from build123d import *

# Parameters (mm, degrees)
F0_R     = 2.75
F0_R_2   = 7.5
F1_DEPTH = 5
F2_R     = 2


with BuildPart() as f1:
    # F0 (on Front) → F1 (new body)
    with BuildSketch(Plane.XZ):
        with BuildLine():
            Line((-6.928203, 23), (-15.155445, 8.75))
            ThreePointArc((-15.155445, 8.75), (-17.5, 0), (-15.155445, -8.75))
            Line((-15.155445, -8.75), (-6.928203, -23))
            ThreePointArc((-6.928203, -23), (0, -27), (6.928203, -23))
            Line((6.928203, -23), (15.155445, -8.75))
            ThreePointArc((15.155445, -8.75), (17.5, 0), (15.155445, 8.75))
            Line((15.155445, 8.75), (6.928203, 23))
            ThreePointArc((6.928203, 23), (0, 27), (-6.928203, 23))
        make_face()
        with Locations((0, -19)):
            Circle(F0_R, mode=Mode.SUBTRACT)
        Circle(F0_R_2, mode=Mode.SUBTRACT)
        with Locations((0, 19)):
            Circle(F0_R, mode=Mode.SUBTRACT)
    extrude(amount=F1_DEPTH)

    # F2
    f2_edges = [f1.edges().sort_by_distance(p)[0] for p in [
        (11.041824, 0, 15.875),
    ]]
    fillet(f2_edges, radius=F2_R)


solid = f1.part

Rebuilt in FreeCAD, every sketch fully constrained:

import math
import FreeCAD as App
import Part
import Sketcher
Q = App.Units.Quantity


def edges_at(feature, points):
    """Names of the edges that pass closest to the given points."""
    edges = feature.Shape.Edges
    near = lambda p: min(range(len(edges)), key=lambda i: edges[i].distToShape(Part.Vertex(*p))[0])
    return sorted({f"Edge{near(p) + 1}" for p in points})

doc = App.newDocument("Part")
params = doc.addObject("Spreadsheet::Sheet", "Params")
for row, (alias, value) in enumerate([
    ("sketch1_diameter", "15 mm"),
    ("sketch1_radius", "8 mm"),
    ("sketch1_diameter2", "5.5 mm"),
    ("pad1_length", "5 mm"),
    ("fillet_radius", "2 mm"),
], start=1):
    params.set(f"A{row}", alias)
    params.set(f"B{row}", "=" + value)
    params.setAlias(f"B{row}", alias)

body = doc.addObject("PartDesign::Body", "Body")

# Sketch on XZ plane
sketch1 = doc.addObject("Sketcher::SketchObject", "Sketch")
body.addObject(sketch1)
sketch1.AttachmentSupport = (doc.XZ_Plane, [""])
sketch1.MapMode = "FlatFace"
sketch1.addGeometry([
    Part.LineSegment(App.Vector(-6.9, 23, 0), App.Vector(-15.2, 8.8, 0)),  # 0
    Part.ArcOfCircle(Part.Circle(App.Vector(0, 0, 0), App.Vector(0, 0, 1), 17.5), math.radians(150), math.radians(210)),  # 1
    Part.LineSegment(App.Vector(-15.2, -8.8, 0), App.Vector(-6.9, -23, 0)),  # 2
    Part.ArcOfCircle(Part.Circle(App.Vector(0, -19, 0), App.Vector(0, 0, 1), 8), math.radians(-150), math.radians(-30)),  # 3
    Part.LineSegment(App.Vector(6.9, -23, 0), App.Vector(15.2, -8.8, 0)),  # 4
    Part.ArcOfCircle(Part.Circle(App.Vector(0, 0, 0), App.Vector(0, 0, 1), 17.5), math.radians(-30), math.radians(30)),  # 5
    Part.LineSegment(App.Vector(15.2, 8.8, 0), App.Vector(6.9, 23, 0)),  # 6
    Part.ArcOfCircle(Part.Circle(App.Vector(0, 19, 0), App.Vector(0, 0, 1), 8), math.radians(30), math.radians(150)),  # 7
    Part.Circle(App.Vector(0, -19, 0), App.Vector(0, 0, 1), 2.8),  # 8
    Part.Circle(App.Vector(0, 0, 0), App.Vector(0, 0, 1), 7.5),  # 9
    Part.Circle(App.Vector(0, 19, 0), App.Vector(0, 0, 1), 2.8),  # 10
], False)
sketch1.addConstraint([
    Sketcher.Constraint("Tangent", 0, 2, 1, 1),
    Sketcher.Constraint("Tangent", 1, 2, 2, 1),
    Sketcher.Constraint("Tangent", 2, 2, 3, 1),
    Sketcher.Constraint("Tangent", 3, 2, 4, 1),
    Sketcher.Constraint("Tangent", 4, 2, 5, 1),
    Sketcher.Constraint("Tangent", 5, 2, 6, 1),
    Sketcher.Constraint("Tangent", 6, 2, 7, 1),
    Sketcher.Constraint("Tangent", 7, 2, 0, 1),
    Sketcher.Constraint("Coincident", 1, 3, -1, 1),
    Sketcher.Constraint("Coincident", 5, 3, -1, 1),
    Sketcher.Constraint("Coincident", 9, 3, -1, 1),
    Sketcher.Constraint("Coincident", 8, 3, 3, 3),
    Sketcher.Constraint("Coincident", 10, 3, 7, 3),
    Sketcher.Constraint("Equal", 1, 5),
    Sketcher.Constraint("Equal", 3, 7),
    Sketcher.Constraint("Equal", 8, 10),
    Sketcher.Constraint("Symmetric", 3, 3, 7, 3, -1, 1),
    Sketcher.Constraint("PointOnObject", 3, 3, -2),
    Sketcher.Constraint("Diameter", 9, 15.0),
    Sketcher.Constraint("Radius", 3, 8.0),
    Sketcher.Constraint("Diameter", 8, 5.5),
    Sketcher.Constraint("Angle", 0, Q("-120.000002 deg")),
    Sketcher.Constraint("DistanceY", 3, 3, -1, 1, 19.0),
])
sketch1.setExpression("Constraints[18]", "Params.sketch1_diameter")
sketch1.setExpression("Constraints[19]", "Params.sketch1_radius")
sketch1.setExpression("Constraints[20]", "Params.sketch1_diameter2")
pad1 = doc.addObject("PartDesign::Pad", "Pad")
body.addObject(pad1)
pad1.Profile = sketch1
pad1.setExpression("Length", "Params.pad1_length")
doc.recompute()

fillet = doc.addObject("PartDesign::Fillet", "Fillet")
body.addObject(fillet)
fillet.Base = (pad1, edges_at(pad1, [(11.042, 0, 15.875)]))
fillet.setExpression("Radius", "Params.fillet_radius")

doc.recompute()
